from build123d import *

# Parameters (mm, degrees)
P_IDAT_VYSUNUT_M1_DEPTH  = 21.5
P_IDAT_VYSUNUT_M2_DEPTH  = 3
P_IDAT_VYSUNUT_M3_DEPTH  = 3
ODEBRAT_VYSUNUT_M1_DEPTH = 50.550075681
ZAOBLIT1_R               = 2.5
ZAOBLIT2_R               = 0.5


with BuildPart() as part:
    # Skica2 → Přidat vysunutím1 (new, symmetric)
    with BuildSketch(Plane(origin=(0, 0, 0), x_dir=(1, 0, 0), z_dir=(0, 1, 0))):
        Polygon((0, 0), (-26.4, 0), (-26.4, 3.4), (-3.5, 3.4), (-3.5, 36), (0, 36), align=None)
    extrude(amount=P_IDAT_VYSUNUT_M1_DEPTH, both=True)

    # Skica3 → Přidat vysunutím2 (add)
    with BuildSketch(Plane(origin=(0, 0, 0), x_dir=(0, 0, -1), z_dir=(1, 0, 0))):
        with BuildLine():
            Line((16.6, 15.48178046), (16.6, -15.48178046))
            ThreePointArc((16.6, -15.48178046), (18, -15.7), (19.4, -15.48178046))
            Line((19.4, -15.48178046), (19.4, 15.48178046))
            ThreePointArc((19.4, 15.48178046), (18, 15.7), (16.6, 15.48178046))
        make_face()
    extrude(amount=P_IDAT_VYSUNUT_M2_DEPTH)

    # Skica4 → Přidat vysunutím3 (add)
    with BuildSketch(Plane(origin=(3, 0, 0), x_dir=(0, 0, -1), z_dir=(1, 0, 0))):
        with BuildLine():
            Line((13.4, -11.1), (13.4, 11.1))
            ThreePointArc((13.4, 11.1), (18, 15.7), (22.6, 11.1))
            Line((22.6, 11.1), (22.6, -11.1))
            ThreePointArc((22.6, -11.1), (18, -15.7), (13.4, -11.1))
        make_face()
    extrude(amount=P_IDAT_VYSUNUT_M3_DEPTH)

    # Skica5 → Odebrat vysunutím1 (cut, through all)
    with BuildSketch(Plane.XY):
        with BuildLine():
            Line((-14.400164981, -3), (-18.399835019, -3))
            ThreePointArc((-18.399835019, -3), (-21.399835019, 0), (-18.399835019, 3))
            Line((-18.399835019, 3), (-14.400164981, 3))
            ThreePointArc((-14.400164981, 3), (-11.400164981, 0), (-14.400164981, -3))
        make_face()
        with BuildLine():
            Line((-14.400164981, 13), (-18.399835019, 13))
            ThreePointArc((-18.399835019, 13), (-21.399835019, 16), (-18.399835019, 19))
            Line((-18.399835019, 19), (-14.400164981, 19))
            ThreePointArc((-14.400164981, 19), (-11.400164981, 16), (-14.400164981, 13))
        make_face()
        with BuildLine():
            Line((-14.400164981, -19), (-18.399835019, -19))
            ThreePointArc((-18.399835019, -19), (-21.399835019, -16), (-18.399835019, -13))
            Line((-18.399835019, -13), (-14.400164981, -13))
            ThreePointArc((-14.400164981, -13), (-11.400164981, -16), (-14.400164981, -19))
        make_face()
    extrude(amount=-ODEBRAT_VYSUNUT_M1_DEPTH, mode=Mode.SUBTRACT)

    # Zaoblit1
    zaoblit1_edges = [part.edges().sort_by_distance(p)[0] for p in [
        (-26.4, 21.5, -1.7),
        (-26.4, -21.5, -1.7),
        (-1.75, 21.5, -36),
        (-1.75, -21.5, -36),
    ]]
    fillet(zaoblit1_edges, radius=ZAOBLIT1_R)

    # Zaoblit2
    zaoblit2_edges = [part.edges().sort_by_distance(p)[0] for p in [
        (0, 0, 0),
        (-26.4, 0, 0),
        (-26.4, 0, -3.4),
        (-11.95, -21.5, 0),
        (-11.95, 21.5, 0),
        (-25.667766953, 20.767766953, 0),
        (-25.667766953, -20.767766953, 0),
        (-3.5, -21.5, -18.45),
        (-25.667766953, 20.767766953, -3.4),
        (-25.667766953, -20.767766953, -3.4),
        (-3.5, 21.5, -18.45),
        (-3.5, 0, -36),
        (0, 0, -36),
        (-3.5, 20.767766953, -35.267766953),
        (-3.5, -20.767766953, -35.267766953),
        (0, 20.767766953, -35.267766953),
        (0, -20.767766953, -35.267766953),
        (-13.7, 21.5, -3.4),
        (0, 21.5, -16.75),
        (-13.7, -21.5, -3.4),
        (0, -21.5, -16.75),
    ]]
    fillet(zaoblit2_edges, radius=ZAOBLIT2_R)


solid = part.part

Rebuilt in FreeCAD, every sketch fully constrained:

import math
import FreeCAD as App
import Part
import Sketcher

V = App.Vector


def edges_at(feature, points):
    """Names of the edges that pass closest to the given points."""
    edges = feature.Shape.Edges
    near = lambda p: min(range(len(edges)), key=lambda i: edges[i].distToShape(Part.Vertex(*p))[0])
    return sorted({f"Edge{near(p) + 1}" for p in points})


def add_polygon(sketch, points):
    """Adds a closed chain of lines whose ends are joined by coincident constraints."""
    first, n = sketch.GeometryCount, len(points)
    for a, b in zip(points, points[1:] + points[:1]):
        sketch.addGeometry(Part.LineSegment(App.Vector(*a, 0), App.Vector(*b, 0)), False)
    for i in range(n):
        sketch.addConstraint(Sketcher.Constraint("Coincident", first + i, 2, first + (i + 1) % n, 1))

doc = App.newDocument("Part")
params = doc.addObject("Spreadsheet::Sheet", "Params")
for row, (alias, value) in enumerate([
    ("sketch1_height", "36 mm"),
    ("sketch1_width", "26.4 mm"),
    ("sketch1_width2", "3.5 mm"),
    ("sketch1_height2", "32.6 mm"),
    ("pad1_length", "43 mm"),
    ("sketch2_radius", "4.6 mm"),
    ("pad2_length", "3 mm"),
    ("sketch3_radius", "4.6 mm"),
    ("sketch3_width", "22.2 mm"),
    ("pad3_length", "3 mm"),
    ("sketch4_radius", "3 mm"),
    ("fillet_radius", "2.5 mm"),
    ("fillet2_radius", "0.5 mm"),
], start=1):
    params.set(f"A{row}", alias)
    params.set(f"B{row}", "=" + value)
    params.setAlias(f"B{row}", alias)

body = doc.addObject("PartDesign::Body", "Body")

sketch1 = doc.addObject("Sketcher::SketchObject", "Sketch")
body.addObject(sketch1)
sketch1.AttachmentSupport = (doc.XZ_Plane, [""])
sketch1.MapMode = "FlatFace"
add_polygon(sketch1, [(-26.4, 0), (0, 0), (0, -36), (-3.5, -36), (-3.5, -3.4), (-26.4, -3.4)])
sketch1.addConstraint(Sketcher.Constraint("Horizontal", 0))
sketch1.addConstraint(Sketcher.Constraint("Vertical", 1))
sketch1.addConstraint(Sketcher.Constraint("Horizontal", 2))
sketch1.addConstraint(Sketcher.Constraint("Vertical", 3))
sketch1.addConstraint(Sketcher.Constraint("Horizontal", 4))
sketch1.addConstraint(Sketcher.Constraint("Vertical", 5))
sketch1.addConstraint(Sketcher.Constraint("Coincident", 0, 2, -1, 1))
sketch1.addConstraint(Sketcher.Constraint("DistanceY", 1, 2, 1, 1, 36.0))
sketch1.addConstraint(Sketcher.Constraint("DistanceX", 0, 1, 0, 2, 26.4))
sketch1.addConstraint(Sketcher.Constraint("DistanceX", 2, 2, 2, 1, 3.5))
sketch1.addConstraint(Sketcher.Constraint("DistanceY", 3, 1, 3, 2, 32.6))
sketch1.setExpression("Constraints[13]", "Params.sketch1_height")
sketch1.setExpression("Constraints[14]", "Params.sketch1_width")
sketch1.setExpression("Constraints[15]", "Params.sketch1_width2")
sketch1.setExpression("Constraints[16]", "Params.sketch1_height2")
pad1 = doc.addObject("PartDesign::Pad", "Pad")
body.addObject(pad1)
pad1.Profile = sketch1
pad1.setExpression("Length", "Params.pad1_length")
pad1.Midplane = True

sketch2 = doc.addObject("Sketcher::SketchObject", "Sketch001")
body.addObject(sketch2)
sketch2.AttachmentSupport = (doc.YZ_Plane, [""])
sketch2.MapMode = "FlatFace"
sketch2.addGeometry(Part.LineSegment(V(15.48178, -16.6, 0), V(-15.48178, -16.6, 0)), False)
sketch2.addGeometry(Part.ArcOfCircle(Part.Circle(V(-11.1, -18, 0), V(0, 0, 1), 4.6), math.radians(162.281068), math.radians(197.718932)), False)
sketch2.addGeometry(Part.LineSegment(V(-15.48178, -19.4, 0), V(15.48178, -19.4, 0)), False)
sketch2.addGeometry(Part.ArcOfCircle(Part.Circle(V(11.1, -18, 0), V(0, 0, 1), 4.6), math.radians(-17.718932), math.radians(17.718932)), False)
sketch2.addConstraint(Sketcher.Constraint("Coincident", 0, 2, 1, 1))
sketch2.addConstraint(Sketcher.Constraint("Coincident", 1, 2, 2, 1))
sketch2.addConstraint(Sketcher.Constraint("Coincident", 2, 2, 3, 1))
sketch2.addConstraint(Sketcher.Constraint("Coincident", 3, 2, 0, 1))
sketch2.addConstraint(Sketcher.Constraint("Horizontal", 0))
sketch2.addConstraint(Sketcher.Constraint("Horizontal", 2))
sketch2.addConstraint(Sketcher.Constraint("Equal", 1, 3))
sketch2.addConstraint(Sketcher.Constraint("Symmetric", 1, 3, 3, 3, -2))
sketch2.addConstraint(Sketcher.Constraint("Vertical", 0, 2, 1, 2))
sketch2.addConstraint(Sketcher.Constraint("Radius", 1, 4.6))
sketch2.addConstraint(Sketcher.Constraint("DistanceY", 1, 3, -1, 1, 18.0))
sketch2.addConstraint(Sketcher.Constraint("DistanceX", 1, 3, -1, 1, 11.1))
sketch2.addConstraint(Sketcher.Constraint("DistanceY", 0, 2, -1, 1, 16.6))
sketch2.setExpression("Constraints[9]", "Params.sketch2_radius")
pad2 = doc.addObject("PartDesign::Pad", "Pad001")
body.addObject(pad2)
pad2.Profile = sketch2
pad2.setExpression("Length", "Params.pad2_length")

sketch3 = doc.addObject("Sketcher::SketchObject", "Sketch002")
body.addObject(sketch3)
sketch3.AttachmentSupport = (doc.YZ_Plane, [""])
sketch3.MapMode = "FlatFace"
sketch3.AttachmentOffset = App.Placement(V(0, 0, 3), App.Rotation())
sketch3.addGeometry(Part.LineSegment(V(11.1, -13.4, 0), V(-11.1, -13.4, 0)), False)
sketch3.addGeometry(Part.ArcOfCircle(Part.Circle(V(-11.1, -18, 0), V(0, 0, 1), 4.6), math.radians(90), math.radians(270)), False)
sketch3.addGeometry(Part.LineSegment(V(-11.1, -22.6, 0), V(11.1, -22.6, 0)), False)
sketch3.addGeometry(Part.ArcOfCircle(Part.Circle(V(11.1, -18, 0), V(0, 0, 1), 4.6), math.radians(-90), math.radians(90)), False)
sketch3.addConstraint(Sketcher.Constraint("Tangent", 0, 2, 1, 1))
sketch3.addConstraint(Sketcher.Constraint("Tangent", 1, 2, 2, 1))
sketch3.addConstraint(Sketcher.Constraint("Tangent", 2, 2, 3, 1))
sketch3.addConstraint(Sketcher.Constraint("Tangent", 3, 2, 0, 1))
sketch3.addConstraint(Sketcher.Constraint("Horizontal", 0))
sketch3.addConstraint(Sketcher.Constraint("Horizontal", 2))
sketch3.addConstraint(Sketcher.Constraint("Radius", 1, 4.6))
sketch3.addConstraint(Sketcher.Constraint("DistanceX", 0, 2, 0, 1, 22.2))
sketch3.addConstraint(Sketcher.Constraint("DistanceY", 1, 3, -1, 1, 18.0))
sketch3.addConstraint(Sketcher.Constraint("DistanceX", 1, 3, -1, 1, 11.1))
sketch3.setExpression("Constraints[6]", "Params.sketch3_radius")
sketch3.setExpression("Constraints[7]", "Params.sketch3_width")
pad3 = doc.addObject("PartDesign::Pad", "Pad002")
body.addObject(pad3)
pad3.Profile = sketch3
pad3.setExpression("Length", "Params.pad3_length")

sketch4 = doc.addObject("Sketcher::SketchObject", "Sketch003")
body.addObject(sketch4)
sketch4.AttachmentSupport = (doc.XY_Plane, [""])
sketch4.MapMode = "FlatFace"
sketch4.addGeometry(Part.LineSegment(V(-18.399835, -3, 0), V(-14.400165, -3, 0)), False)
sketch4.addGeometry(Part.ArcOfCircle(Part.Circle(V(-14.400165, 0, 0), V(0, 0, 1), 3), math.radians(-90), math.radians(90)), False)
sketch4.addGeometry(Part.LineSegment(V(-14.400165, 3, 0), V(-18.399835, 3, 0)), False)
sketch4.addGeometry(Part.ArcOfCircle(Part.Circle(V(-18.399835, 0, 0), V(0, 0, 1), 3), math.radians(90), math.radians(270)), False)
sketch4.addGeometry(Part.LineSegment(V(-18.399835, 13, 0), V(-14.400165, 13, 0)), False)
sketch4.addGeometry(Part.ArcOfCircle(Part.Circle(V(-14.400165, 16, 0), V(0, 0, 1), 3), math.radians(-90), math.radians(90)), False)
sketch4.addGeometry(Part.LineSegment(V(-14.400165, 19, 0), V(-18.399835, 19, 0)), False)
sketch4.addGeometry(Part.ArcOfCircle(Part.Circle(V(-18.399835, 16, 0), V(0, 0, 1), 3), math.radians(90), math.radians(270)), False)
sketch4.addGeometry(Part.LineSegment(V(-18.399835, -19, 0), V(-14.400165, -19, 0)), False)
sketch4.addGeometry(Part.ArcOfCircle(Part.Circle(V(-14.400165, -16, 0), V(0, 0, 1), 3), math.radians(-90), math.radians(90)), False)
sketch4.addGeometry(Part.LineSegment(V(-14.400165, -13, 0), V(-18.399835, -13, 0)), False)
sketch4.addGeometry(Part.ArcOfCircle(Part.Circle(V(-18.399835, -16, 0), V(0, 0, 1), 3), math.radians(90), math.radians(270)), False)
sketch4.addConstraint(Sketcher.Constraint("Tangent", 0, 2, 1, 1))
sketch4.addConstraint(Sketcher.Constraint("Tangent", 1, 2, 2, 1))
sketch4.addConstraint(Sketcher.Constraint("Tangent", 2, 2, 3, 1))
sketch4.addConstraint(Sketcher.Constraint("Tangent", 3, 2, 0, 1))
sketch4.addConstraint(Sketcher.Constraint("Tangent", 4, 2, 5, 1))
sketch4.addConstraint(Sketcher.Constraint("Tangent", 5, 2, 6, 1))
sketch4.addConstraint(Sketcher.Constraint("Tangent", 6, 2, 7, 1))
sketch4.addConstraint(Sketcher.Constraint("Tangent", 7, 2, 4, 1))
sketch4.addConstraint(Sketcher.Constraint("Tangent", 8, 2, 9, 1))
sketch4.addConstraint(Sketcher.Constraint("Tangent", 9, 2, 10, 1))
sketch4.addConstraint(Sketcher.Constraint("Tangent", 10, 2, 11, 1))
sketch4.addConstraint(Sketcher.Constraint("Tangent", 11, 2, 8, 1))
sketch4.addConstraint(Sketcher.Constraint("Horizontal", 0))
sketch4.addConstraint(Sketcher.Constraint("Horizontal", 2))
sketch4.addConstraint(Sketcher.Constraint("Horizontal", 4))
sketch4.addConstraint(Sketcher.Constraint("Horizontal", 6))
sketch4.addConstraint(Sketcher.Constraint("Horizontal", 8))
sketch4.addConstraint(Sketcher.Constraint("Horizontal", 10))
sketch4.addConstraint(Sketcher.Constraint("Equal", 3, 5))
sketch4.addConstraint(Sketcher.Constraint("Equal", 7, 9))
sketch4.addConstraint(Sketcher.Constraint("Symmetric", 5, 3, 9, 3, -1))
sketch4.addConstraint(Sketcher.Constraint("PointOnObject", 1, 3, -1))
sketch4.addConstraint(Sketcher.Constraint("Vertical", 1, 3, 5, 3))
sketch4.addConstraint(Sketcher.Constraint("Vertical", 3, 3, 7, 3))
sketch4.addConstraint(Sketcher.Constraint("Vertical", 7, 3, 11, 3))
sketch4.addConstraint(Sketcher.Constraint("Radius", 1, 3.0))
sketch4.addConstraint(Sketcher.Constraint("DistanceY", -1, 1, 5, 3, 16.0))
sketch4.addConstraint(Sketcher.Constraint("DistanceX", 0, 1, 0, 2, 3.99967))
sketch4.addConstraint(Sketcher.Constraint("DistanceX", 1, 3, -1, 1, 14.400165))
sketch4.setExpression("Constraints[25]", "Params.sketch4_radius")
pocket1 = doc.addObject("PartDesign::Pocket", "Pocket")
body.addObject(pocket1)
pocket1.Profile = sketch4
pocket1.Type = "ThroughAll"
doc.recompute()

fillet = doc.addObject("PartDesign::Fillet", "Fillet")
body.addObject(fillet)
fillet.Base = (pocket1, edges_at(pocket1, [
    (-26.4, 21.5, -1.7),
    (-26.4, -21.5, -1.7),
    (-1.75, 21.5, -36),
    (-1.75, -21.5, -36),
]))
fillet.setExpression("Radius", "Params.fillet_radius")
doc.recompute()

fillet2 = doc.addObject("PartDesign::Fillet", "Fillet001")
body.addObject(fillet2)
fillet2.Base = (fillet, edges_at(fillet, [
    (0, 0, 0),
    (-26.4, 0, 0),
    (-26.4, 0, -3.4),
    (-11.95, -21.5, 0),
    (-11.95, 21.5, 0),
    (-25.668, 20.768, 0),
    (-25.668, -20.768, 0),
    (-3.5, -21.5, -18.45),
    (-25.668, 20.768, -3.4),
    (-25.668, -20.768, -3.4),
    (-3.5, 21.5, -18.45),
    (-3.5, 0, -36),
    (0, 0, -36),
    (-3.5, 20.768, -35.268),
    (-3.5, -20.768, -35.268),
    (0, 20.768, -35.268),
    (0, -20.768, -35.268),
    (-13.7, 21.5, -3.4),
    (0, 21.5, -16.75),
    (-13.7, -21.5, -3.4),
    (0, -21.5, -16.75),
]))
fillet2.setExpression("Radius", "Params.fillet2_radius")

doc.recompute()
